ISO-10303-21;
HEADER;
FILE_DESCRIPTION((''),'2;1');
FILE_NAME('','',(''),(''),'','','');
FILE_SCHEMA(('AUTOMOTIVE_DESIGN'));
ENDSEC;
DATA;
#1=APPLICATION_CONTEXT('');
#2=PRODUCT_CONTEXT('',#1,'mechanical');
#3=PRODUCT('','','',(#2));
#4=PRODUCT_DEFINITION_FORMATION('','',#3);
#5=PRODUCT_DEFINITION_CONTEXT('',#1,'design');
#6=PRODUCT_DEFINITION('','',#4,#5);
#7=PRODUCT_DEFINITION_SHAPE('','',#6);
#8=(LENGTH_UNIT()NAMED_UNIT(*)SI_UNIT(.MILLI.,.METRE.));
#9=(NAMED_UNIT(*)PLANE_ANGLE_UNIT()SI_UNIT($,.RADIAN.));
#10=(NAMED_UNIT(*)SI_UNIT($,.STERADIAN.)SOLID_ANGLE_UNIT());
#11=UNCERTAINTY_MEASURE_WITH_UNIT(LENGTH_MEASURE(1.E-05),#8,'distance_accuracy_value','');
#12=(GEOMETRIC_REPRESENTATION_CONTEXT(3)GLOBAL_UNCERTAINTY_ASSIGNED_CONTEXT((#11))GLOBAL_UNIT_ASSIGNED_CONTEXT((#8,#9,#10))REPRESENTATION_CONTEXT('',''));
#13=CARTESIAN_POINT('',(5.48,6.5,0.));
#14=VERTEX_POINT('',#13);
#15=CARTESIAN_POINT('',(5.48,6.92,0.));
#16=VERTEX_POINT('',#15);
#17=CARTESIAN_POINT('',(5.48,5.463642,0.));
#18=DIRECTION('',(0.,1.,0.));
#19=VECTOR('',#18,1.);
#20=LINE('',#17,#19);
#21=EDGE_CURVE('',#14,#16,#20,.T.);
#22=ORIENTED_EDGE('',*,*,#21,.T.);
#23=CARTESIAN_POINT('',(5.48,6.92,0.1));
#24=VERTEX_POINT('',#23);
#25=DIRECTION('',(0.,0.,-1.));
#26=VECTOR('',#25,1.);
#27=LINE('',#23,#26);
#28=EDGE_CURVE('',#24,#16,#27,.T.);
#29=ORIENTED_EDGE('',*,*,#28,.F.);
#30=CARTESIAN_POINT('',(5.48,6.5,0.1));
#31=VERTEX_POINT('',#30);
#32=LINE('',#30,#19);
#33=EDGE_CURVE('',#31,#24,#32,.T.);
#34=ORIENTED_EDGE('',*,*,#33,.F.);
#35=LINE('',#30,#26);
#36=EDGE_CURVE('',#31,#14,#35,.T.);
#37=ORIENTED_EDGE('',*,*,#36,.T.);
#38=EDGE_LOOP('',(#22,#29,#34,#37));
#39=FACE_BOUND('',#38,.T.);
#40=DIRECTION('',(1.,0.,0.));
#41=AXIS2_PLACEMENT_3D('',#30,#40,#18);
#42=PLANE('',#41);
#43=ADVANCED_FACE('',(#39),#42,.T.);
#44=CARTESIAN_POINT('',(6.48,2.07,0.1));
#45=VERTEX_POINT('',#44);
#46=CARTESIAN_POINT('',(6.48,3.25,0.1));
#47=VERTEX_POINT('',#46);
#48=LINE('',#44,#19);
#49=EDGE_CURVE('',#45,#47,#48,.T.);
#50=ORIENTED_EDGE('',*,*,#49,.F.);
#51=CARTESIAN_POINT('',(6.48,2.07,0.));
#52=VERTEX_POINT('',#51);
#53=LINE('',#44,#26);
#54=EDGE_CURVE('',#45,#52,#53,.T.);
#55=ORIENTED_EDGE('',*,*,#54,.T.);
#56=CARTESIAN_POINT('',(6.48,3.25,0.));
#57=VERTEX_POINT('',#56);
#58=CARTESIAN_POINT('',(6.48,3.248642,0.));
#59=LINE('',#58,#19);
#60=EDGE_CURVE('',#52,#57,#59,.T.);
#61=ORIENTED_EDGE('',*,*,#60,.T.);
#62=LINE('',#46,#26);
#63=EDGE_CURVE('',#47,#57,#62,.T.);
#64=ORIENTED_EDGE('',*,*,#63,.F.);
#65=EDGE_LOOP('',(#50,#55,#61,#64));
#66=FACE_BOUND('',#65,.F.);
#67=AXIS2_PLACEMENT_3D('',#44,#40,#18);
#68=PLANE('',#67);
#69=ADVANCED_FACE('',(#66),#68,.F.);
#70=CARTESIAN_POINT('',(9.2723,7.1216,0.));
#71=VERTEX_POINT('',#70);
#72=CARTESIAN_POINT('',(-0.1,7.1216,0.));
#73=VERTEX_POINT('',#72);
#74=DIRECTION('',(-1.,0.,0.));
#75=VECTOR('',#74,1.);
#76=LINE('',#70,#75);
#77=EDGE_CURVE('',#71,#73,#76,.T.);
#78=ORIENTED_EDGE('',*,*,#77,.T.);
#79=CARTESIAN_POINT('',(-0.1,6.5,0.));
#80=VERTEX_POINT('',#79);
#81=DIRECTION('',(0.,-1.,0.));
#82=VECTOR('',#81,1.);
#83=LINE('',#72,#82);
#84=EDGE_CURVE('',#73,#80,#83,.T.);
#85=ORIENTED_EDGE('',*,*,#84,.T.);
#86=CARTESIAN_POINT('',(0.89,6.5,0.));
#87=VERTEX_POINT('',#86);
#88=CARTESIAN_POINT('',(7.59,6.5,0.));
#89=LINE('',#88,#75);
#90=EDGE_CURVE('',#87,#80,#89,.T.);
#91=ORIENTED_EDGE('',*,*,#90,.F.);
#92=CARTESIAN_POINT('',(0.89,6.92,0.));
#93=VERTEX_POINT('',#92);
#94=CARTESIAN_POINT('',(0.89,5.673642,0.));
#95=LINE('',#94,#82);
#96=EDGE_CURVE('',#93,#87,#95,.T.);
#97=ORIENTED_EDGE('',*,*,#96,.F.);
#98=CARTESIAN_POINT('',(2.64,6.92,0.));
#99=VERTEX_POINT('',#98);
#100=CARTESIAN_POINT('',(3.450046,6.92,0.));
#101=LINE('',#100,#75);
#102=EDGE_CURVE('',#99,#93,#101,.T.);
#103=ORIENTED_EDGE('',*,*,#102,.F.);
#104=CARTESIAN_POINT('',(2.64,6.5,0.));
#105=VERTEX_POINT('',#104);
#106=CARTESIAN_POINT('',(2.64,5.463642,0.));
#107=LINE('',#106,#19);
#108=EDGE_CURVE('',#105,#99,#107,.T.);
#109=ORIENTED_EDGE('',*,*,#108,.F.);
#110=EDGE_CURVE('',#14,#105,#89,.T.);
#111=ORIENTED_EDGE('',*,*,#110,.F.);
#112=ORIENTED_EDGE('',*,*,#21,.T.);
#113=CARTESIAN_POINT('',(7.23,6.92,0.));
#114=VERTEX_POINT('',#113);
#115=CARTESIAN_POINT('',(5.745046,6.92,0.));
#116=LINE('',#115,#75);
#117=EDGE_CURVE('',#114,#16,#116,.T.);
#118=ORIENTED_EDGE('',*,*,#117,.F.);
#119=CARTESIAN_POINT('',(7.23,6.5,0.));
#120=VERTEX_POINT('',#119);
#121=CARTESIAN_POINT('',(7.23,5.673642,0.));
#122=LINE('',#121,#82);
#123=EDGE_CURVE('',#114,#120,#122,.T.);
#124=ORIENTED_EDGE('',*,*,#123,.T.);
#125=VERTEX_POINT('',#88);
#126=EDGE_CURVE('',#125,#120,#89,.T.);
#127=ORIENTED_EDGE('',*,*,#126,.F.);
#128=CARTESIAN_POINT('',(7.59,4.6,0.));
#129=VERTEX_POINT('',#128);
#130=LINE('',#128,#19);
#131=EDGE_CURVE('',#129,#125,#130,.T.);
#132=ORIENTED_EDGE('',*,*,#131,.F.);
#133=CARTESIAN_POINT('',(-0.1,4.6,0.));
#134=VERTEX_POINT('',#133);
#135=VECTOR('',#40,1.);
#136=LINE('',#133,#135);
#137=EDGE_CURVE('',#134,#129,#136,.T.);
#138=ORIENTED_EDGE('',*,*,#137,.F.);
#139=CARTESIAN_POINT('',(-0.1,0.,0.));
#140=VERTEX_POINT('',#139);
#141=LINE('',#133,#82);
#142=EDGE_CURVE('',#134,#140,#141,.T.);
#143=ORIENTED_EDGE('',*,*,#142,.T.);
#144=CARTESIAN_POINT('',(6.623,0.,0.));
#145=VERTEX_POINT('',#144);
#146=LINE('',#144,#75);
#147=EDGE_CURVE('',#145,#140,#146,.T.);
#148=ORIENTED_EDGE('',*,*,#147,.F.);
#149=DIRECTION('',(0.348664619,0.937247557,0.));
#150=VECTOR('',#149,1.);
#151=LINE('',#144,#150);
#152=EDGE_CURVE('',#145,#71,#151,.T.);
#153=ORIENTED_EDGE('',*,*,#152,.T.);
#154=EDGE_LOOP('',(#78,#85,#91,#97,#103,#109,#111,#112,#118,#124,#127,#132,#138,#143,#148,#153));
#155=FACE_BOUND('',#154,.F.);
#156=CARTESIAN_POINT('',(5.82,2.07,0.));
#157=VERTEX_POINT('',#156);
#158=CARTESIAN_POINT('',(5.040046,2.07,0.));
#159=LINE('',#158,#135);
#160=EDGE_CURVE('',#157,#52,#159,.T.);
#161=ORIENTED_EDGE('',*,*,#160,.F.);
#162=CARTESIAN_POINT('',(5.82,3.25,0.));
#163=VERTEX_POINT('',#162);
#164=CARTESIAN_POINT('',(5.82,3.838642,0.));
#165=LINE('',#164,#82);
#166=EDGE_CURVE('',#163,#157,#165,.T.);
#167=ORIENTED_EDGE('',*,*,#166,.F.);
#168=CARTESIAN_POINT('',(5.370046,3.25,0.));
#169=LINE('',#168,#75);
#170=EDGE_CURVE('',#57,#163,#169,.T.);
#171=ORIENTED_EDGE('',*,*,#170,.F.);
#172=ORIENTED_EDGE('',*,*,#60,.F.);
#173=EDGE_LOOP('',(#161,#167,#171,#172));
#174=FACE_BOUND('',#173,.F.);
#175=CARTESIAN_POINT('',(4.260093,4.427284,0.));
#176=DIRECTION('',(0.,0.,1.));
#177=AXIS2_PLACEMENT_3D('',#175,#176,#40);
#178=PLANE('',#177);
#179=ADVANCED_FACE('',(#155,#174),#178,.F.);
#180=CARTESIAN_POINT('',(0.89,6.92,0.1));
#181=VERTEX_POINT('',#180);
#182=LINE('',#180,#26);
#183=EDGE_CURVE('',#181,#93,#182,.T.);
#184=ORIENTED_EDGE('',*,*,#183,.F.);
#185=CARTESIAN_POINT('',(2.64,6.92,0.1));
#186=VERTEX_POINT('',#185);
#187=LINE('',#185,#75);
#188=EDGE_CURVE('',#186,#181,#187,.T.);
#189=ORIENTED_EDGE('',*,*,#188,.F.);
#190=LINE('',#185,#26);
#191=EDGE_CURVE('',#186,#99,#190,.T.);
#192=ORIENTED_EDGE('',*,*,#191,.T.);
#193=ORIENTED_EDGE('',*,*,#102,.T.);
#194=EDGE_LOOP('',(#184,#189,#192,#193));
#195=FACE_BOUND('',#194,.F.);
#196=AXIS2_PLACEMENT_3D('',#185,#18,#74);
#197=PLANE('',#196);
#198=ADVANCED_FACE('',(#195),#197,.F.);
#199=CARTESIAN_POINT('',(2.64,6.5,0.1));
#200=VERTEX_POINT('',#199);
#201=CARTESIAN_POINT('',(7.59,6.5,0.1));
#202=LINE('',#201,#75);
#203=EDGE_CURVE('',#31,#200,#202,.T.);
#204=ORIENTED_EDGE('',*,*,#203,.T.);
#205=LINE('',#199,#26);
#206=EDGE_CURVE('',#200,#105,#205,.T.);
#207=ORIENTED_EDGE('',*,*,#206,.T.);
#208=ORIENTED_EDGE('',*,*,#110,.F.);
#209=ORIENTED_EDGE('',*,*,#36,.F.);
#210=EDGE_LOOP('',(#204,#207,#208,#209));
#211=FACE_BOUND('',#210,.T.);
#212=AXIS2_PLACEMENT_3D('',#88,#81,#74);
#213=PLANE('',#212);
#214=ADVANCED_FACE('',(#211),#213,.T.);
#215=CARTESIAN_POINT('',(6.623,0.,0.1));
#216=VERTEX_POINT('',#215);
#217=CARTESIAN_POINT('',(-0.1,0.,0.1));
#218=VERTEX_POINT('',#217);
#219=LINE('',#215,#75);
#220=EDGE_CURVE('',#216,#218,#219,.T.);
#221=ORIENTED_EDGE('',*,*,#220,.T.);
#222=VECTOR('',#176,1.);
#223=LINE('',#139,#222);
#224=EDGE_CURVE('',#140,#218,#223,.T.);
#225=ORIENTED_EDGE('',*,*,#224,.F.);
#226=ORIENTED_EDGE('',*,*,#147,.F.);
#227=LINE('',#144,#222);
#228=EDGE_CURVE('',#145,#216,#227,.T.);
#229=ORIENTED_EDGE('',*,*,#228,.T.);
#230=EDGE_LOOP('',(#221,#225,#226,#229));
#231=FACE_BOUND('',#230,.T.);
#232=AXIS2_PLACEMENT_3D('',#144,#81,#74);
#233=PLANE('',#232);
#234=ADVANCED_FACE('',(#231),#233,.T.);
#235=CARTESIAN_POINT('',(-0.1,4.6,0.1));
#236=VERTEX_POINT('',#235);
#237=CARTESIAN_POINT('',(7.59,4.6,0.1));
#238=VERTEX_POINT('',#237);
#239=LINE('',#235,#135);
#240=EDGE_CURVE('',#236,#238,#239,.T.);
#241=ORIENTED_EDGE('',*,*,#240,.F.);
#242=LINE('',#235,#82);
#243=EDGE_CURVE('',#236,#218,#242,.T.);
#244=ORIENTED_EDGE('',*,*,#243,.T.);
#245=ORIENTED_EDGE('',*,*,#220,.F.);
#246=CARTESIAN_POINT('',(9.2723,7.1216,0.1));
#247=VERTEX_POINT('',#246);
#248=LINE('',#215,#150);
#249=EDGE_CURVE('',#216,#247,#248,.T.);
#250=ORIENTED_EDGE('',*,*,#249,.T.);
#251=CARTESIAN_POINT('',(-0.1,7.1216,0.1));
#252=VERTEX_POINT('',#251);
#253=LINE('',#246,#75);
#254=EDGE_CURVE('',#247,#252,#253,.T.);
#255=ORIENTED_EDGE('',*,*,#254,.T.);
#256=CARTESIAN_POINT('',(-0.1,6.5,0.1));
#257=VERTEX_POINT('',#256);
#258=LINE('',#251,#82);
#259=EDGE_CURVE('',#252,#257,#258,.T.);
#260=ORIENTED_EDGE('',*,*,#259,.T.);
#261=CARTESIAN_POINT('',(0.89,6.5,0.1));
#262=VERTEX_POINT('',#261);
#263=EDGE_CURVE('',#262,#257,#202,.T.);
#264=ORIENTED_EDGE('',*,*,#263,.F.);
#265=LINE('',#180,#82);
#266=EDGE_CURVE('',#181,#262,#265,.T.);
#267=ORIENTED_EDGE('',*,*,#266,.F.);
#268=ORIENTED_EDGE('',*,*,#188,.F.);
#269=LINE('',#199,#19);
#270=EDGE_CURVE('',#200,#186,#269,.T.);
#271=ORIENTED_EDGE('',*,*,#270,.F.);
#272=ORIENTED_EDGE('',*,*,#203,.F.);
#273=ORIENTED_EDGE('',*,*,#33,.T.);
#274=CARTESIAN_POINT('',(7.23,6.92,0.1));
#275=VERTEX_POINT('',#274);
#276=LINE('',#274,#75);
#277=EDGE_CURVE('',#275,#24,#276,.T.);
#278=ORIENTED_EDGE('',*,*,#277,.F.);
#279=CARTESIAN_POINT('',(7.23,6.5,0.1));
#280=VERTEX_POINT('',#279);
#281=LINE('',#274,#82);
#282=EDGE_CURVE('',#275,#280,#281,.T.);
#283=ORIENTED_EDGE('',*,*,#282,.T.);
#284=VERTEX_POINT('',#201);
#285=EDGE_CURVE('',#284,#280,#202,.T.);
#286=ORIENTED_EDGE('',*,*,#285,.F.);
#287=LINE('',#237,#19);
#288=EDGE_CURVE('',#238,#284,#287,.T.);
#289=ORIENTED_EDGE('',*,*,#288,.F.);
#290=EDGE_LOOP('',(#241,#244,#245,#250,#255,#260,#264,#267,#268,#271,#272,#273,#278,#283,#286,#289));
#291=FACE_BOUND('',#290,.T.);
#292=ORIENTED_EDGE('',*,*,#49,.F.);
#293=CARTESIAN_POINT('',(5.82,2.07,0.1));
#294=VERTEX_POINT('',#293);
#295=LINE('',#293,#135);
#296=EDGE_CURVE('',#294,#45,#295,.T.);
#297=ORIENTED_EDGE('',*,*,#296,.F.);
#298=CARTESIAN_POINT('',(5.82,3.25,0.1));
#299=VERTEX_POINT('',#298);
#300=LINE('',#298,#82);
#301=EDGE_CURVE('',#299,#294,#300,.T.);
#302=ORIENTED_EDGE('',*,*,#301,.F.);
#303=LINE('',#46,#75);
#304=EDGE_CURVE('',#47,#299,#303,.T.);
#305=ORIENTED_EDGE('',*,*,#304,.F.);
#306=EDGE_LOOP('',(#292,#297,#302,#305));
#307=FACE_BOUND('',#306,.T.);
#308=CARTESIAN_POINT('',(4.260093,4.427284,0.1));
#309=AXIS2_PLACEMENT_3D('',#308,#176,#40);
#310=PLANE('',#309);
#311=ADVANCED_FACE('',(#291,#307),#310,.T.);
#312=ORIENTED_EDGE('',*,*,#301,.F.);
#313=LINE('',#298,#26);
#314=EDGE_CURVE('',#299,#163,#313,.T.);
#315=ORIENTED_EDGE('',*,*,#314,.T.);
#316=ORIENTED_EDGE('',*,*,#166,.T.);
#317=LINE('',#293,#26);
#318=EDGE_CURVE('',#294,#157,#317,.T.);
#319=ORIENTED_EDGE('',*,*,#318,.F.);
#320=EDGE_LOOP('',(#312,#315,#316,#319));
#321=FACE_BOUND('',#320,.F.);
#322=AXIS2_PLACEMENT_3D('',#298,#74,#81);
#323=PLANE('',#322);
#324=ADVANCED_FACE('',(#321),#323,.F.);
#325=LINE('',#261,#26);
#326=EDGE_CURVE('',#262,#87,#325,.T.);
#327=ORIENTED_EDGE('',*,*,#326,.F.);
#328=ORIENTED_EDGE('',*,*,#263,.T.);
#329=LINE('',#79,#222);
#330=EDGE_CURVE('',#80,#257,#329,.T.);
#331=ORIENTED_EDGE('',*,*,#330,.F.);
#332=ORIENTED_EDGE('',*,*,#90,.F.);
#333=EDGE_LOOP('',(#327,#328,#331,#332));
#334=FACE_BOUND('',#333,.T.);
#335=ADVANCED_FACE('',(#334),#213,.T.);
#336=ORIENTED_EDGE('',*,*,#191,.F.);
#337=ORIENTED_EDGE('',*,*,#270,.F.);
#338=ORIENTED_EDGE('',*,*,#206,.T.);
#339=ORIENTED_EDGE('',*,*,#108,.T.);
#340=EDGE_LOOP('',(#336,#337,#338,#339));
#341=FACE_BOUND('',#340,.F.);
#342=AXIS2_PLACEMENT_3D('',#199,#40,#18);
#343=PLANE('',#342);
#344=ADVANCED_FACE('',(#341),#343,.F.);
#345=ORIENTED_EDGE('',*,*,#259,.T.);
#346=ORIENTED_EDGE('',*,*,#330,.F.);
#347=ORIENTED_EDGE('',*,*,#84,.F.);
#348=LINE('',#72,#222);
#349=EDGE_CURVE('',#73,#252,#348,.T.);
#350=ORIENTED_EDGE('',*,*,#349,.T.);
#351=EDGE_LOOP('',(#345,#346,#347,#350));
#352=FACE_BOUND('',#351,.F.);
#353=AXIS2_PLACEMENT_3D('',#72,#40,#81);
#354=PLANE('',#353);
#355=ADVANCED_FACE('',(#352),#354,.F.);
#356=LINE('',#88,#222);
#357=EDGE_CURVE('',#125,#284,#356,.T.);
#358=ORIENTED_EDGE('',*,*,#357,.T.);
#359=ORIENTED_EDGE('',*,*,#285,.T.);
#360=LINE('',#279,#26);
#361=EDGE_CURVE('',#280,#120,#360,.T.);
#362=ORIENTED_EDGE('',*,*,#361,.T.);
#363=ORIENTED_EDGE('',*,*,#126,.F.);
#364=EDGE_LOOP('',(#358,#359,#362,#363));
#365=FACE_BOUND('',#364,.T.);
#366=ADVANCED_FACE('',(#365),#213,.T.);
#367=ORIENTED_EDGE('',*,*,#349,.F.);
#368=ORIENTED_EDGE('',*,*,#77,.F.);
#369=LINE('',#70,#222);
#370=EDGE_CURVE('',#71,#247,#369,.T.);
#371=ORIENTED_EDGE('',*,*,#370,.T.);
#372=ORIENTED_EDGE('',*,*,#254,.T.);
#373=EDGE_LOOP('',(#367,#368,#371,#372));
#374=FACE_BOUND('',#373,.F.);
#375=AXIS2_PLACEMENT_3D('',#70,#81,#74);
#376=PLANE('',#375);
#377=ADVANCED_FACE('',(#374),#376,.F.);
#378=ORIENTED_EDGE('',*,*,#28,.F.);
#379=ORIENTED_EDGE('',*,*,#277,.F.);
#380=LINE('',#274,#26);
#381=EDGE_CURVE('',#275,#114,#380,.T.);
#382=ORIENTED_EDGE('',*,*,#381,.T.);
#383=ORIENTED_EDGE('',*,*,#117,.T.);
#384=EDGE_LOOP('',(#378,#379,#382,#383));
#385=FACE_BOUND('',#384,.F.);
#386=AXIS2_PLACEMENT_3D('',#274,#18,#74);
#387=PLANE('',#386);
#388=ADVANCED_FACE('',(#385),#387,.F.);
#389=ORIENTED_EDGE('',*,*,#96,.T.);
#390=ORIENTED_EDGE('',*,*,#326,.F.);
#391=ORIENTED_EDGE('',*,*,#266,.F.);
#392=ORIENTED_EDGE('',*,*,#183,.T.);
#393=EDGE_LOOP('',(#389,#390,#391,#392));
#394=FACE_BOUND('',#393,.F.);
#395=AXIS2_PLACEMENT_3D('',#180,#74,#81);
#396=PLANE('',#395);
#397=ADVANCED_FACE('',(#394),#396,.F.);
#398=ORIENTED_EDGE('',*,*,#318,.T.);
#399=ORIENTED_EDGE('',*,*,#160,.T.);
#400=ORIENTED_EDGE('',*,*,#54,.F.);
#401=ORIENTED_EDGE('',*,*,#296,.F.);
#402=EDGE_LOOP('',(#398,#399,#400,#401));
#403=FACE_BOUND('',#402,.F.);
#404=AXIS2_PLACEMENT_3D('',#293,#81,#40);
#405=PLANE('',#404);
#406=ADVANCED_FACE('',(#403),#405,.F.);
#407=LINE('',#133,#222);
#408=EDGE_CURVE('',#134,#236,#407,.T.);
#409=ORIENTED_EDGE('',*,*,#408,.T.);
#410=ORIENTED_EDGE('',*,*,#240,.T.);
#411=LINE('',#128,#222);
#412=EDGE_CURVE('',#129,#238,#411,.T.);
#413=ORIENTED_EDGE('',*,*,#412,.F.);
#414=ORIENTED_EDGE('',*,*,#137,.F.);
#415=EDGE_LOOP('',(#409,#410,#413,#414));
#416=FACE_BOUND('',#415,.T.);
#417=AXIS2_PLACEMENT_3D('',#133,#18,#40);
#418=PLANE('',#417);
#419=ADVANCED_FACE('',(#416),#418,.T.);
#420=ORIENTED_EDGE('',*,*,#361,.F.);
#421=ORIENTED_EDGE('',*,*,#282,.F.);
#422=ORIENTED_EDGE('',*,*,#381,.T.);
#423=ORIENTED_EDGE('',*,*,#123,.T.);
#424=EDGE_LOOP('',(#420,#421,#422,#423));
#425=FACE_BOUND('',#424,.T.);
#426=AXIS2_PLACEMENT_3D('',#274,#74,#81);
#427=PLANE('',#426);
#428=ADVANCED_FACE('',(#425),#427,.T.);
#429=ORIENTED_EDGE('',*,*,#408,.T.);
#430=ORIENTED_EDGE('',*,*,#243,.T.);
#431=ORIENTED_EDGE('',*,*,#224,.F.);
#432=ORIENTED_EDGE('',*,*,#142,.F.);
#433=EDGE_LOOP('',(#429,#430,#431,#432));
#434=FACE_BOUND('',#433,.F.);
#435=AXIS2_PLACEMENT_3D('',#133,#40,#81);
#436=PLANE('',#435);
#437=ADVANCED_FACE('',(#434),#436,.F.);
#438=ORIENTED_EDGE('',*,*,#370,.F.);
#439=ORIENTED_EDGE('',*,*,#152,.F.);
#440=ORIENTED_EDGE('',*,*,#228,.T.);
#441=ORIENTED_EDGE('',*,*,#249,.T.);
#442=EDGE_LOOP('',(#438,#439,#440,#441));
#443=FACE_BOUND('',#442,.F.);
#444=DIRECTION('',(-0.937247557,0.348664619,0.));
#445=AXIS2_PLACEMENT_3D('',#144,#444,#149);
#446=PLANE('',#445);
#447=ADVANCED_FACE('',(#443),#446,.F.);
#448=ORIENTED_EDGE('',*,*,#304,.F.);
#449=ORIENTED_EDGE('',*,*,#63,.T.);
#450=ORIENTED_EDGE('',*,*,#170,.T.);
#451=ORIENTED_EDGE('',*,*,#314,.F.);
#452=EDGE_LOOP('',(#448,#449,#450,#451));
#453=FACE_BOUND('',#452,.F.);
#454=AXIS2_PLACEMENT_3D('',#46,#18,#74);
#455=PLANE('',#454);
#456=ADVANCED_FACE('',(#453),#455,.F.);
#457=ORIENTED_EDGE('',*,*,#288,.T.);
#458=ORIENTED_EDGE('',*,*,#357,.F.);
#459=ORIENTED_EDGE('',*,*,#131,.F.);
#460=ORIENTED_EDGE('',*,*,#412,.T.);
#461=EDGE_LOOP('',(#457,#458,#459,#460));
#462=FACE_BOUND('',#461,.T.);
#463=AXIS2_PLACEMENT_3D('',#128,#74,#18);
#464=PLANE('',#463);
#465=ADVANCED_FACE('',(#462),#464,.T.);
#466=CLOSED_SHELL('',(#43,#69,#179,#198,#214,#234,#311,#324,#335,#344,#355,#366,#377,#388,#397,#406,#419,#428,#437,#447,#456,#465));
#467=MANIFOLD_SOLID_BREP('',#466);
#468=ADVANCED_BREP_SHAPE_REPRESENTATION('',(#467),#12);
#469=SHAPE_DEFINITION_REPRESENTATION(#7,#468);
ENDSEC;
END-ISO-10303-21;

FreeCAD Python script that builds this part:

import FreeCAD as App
import Part
import Sketcher


def add_polygon(sketch, points):
    """Adds a closed chain of lines whose ends are joined by coincident constraints."""
    first, n = sketch.GeometryCount, len(points)
    for a, b in zip(points, points[1:] + points[:1]):
        sketch.addGeometry(Part.LineSegment(App.Vector(*a, 0), App.Vector(*b, 0)), False)
    for i in range(n):
        sketch.addConstraint(Sketcher.Constraint("Coincident", first + i, 2, first + (i + 1) % n, 1))

doc = App.newDocument("Part")
body = doc.addObject("PartDesign::Body", "Body")

sketch1 = body.newObject("Sketcher::SketchObject", "Sketch")
sketch1.AttachmentSupport = (doc.getObject("XY_Plane"), [""])
sketch1.MapMode = "FlatFace"
add_polygon(sketch1, [(7.6, 4.6), (-0.1, 4.6), (-0.1, 0), (6.6, 0), (9.3, 7.1), (-0.1, 7.1), (-0.1, 6.5), (7.6, 6.5)])
sketch1.addConstraint([
    Sketcher.Constraint("Horizontal", 0),
    Sketcher.Constraint("Vertical", 1),
    Sketcher.Constraint("Horizontal", 2),
    Sketcher.Constraint("Horizontal", 4),
    Sketcher.Constraint("Vertical", 5),
    Sketcher.Constraint("Horizontal", 6),
    Sketcher.Constraint("Vertical", 7),
    Sketcher.Constraint("PointOnObject", 1, 2, -1),
    Sketcher.Constraint("Vertical", 1, 2, 4, 2),
    Sketcher.Constraint("DistanceX", 0, 2, -1, 1, 0.1),
    Sketcher.Constraint("DistanceX", -1, 1, 6, 2, 7.59),
    Sketcher.Constraint("DistanceY", 1, 2, 1, 1, 4.6),
    Sketcher.Constraint("DistanceY", 7, 2, 7, 1, 1.9),
    Sketcher.Constraint("DistanceX", 2, 1, 2, 2, 6.723),
    Sketcher.Constraint("DistanceX", 4, 2, 4, 1, 9.3723),
    Sketcher.Constraint("DistanceY", 5, 2, 5, 1, 0.6216),
])
pad1 = body.newObject("PartDesign::Pad", "Pad")
pad1.Profile = sketch1
pad1.Length = 0.1

sketch2 = body.newObject("Sketcher::SketchObject", "Sketch001")
sketch2.AttachmentSupport = (doc.getObject("XY_Plane"), [""])
sketch2.MapMode = "FlatFace"
sketch2.AttachmentOffset = App.Placement(App.Vector(0, 0, 0.1), App.Rotation())
add_polygon(sketch2, [(6.5, 2.1), (6.5, 3.2), (5.8, 3.2), (5.8, 2.1)])
sketch2.addConstraint([
    Sketcher.Constraint("Vertical", 0),
    Sketcher.Constraint("Horizontal", 1),
    Sketcher.Constraint("Vertical", 2),
    Sketcher.Constraint("Horizontal", 3),
    Sketcher.Constraint("DistanceX", 1, 2, 1, 1, 0.66),
    Sketcher.Constraint("DistanceY", 0, 1, 0, 2, 1.18),
    Sketcher.Constraint("DistanceX", -1, 1, 0, 2, 6.48),
    Sketcher.Constraint("DistanceY", -1, 1, 0, 2, 3.25),
])
pocket1 = body.newObject("PartDesign::Pocket", "Pocket")
pocket1.Profile = sketch2
pocket1.Type = "ThroughAll"

sketch3 = body.newObject("Sketcher::SketchObject", "Sketch002")
sketch3.AttachmentSupport = (doc.getObject("XY_Plane"), [""])
sketch3.MapMode = "FlatFace"
sketch3.AttachmentOffset = App.Placement(App.Vector(0, 0, 0.1), App.Rotation())
add_polygon(sketch3, [(5.48, 6.92), (5.48, 6.5), (7.23, 6.5), (7.23, 6.92)])
add_polygon(sketch3, [(0.89, 6.5), (2.64, 6.5), (2.64, 6.92), (0.89, 6.92)])
sketch3.addConstraint([
    Sketcher.Constraint("Vertical", 0),
    Sketcher.Constraint("Horizontal", 1),
    Sketcher.Constraint("Vertical", 2),
    Sketcher.Constraint("Horizontal", 3),
    Sketcher.Constraint("Horizontal", 4),
    Sketcher.Constraint("Vertical", 5),
    Sketcher.Constraint("Horizontal", 6),
    Sketcher.Constraint("Vertical", 7),
    Sketcher.Constraint("Horizontal", 1, 2, 4, 2),
    Sketcher.Constraint("Horizontal", 3, 2, 5, 2),
    Sketcher.Constraint("Equal", 3, 4),
    Sketcher.Constraint("DistanceX", 1, 1, 1, 2, 1.75),
    Sketcher.Constraint("DistanceY", 0, 2, 0, 1, 0.42),
    Sketcher.Constraint("DistanceY", -1, 1, 0, 2, 6.5),
    Sketcher.Constraint("DistanceX", -1, 1, 0, 2, 5.48),
    Sketcher.Constraint("DistanceX", -1, 1, 4, 2, 2.64),
])
pocket2 = body.newObject("PartDesign::Pocket", "Pocket001")
pocket2.Profile = sketch3
pocket2.Type = "ThroughAll"

doc.recompute()
